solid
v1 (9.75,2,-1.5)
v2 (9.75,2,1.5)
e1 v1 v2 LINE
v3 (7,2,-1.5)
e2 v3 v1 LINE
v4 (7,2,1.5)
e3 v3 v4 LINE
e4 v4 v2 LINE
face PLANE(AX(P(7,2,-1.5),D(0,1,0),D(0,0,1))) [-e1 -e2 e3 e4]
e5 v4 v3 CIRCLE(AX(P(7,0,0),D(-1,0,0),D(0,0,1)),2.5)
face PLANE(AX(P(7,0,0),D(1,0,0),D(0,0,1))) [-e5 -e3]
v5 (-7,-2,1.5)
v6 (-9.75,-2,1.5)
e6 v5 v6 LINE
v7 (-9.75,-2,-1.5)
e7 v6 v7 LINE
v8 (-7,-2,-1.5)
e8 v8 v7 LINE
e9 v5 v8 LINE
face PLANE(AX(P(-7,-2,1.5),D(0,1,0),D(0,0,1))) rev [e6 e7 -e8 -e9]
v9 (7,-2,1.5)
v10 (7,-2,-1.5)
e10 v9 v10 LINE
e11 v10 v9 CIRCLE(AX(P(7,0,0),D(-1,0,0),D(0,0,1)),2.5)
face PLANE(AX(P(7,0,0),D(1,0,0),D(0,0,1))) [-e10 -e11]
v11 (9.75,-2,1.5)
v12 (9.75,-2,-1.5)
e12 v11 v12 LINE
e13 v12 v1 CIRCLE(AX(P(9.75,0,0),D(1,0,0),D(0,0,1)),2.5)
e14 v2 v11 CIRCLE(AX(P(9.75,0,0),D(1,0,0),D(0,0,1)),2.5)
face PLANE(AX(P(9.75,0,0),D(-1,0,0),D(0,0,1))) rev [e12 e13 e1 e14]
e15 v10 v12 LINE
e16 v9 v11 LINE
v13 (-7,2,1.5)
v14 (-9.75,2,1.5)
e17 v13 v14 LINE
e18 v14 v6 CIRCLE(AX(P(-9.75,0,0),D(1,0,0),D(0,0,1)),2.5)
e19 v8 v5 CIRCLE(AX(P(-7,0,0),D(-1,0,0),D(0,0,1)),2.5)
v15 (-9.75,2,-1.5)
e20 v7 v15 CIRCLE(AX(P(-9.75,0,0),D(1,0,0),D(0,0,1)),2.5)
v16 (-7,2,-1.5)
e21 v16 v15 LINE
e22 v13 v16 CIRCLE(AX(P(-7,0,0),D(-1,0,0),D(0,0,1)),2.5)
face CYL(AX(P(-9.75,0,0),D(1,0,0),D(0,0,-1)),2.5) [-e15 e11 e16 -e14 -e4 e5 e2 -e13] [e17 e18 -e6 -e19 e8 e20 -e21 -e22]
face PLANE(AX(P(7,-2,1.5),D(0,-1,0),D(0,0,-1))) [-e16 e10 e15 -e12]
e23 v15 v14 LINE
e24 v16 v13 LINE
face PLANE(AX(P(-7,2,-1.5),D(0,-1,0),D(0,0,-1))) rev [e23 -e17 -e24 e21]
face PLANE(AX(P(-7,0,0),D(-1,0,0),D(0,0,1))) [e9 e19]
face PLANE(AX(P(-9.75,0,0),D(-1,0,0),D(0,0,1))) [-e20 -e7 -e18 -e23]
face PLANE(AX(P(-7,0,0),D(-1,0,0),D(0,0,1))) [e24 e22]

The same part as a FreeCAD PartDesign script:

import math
import FreeCAD as App
import Part
import Sketcher
from FreeCAD import Vector
Q = App.Units.Quantity

doc = App.newDocument("Part")
params = doc.addObject("Spreadsheet::Sheet", "Params")
for row, (alias, value) in enumerate([
    ("sketch1_diameter", "5 mm"),
    ("pad1_length", "19.5 mm"),
    ("sketch2_radius", "2.5 mm"),
    ("sketch2_height", "3 mm"),
    ("pocket1_length", "2.75 mm"),
], start=1):
    params.set(f"A{row}", alias)
    params.set(f"B{row}", "=" + value)
    params.setAlias(f"B{row}", alias)

body = doc.addObject("PartDesign::Body", "Body")

# Sketch on YZ plane
sketch1 = body.newObject("Sketcher::SketchObject", "Sketch")
sketch1.AttachmentSupport = (doc.getObject("YZ_Plane"), [""])
sketch1.MapMode = "FlatFace"
sketch1.addGeometry(Part.Circle(Vector(0, 0, 0), Vector(0, 0, 1), 2.5), False)
sketch1.addConstraint(Sketcher.Constraint("Coincident", 0, 3, -1, 1))
sketch1.addConstraint(Sketcher.Constraint("Diameter", 0, Q("5 mm")))
sketch1.setExpression("Constraints[1]", "Params.sketch1_diameter")
pad1 = body.newObject("PartDesign::Pad", "Pad")
pad1.Profile = sketch1
pad1.setExpression("Length", "Params.pad1_length")
pad1.Midplane = True

# Sketch on YZ plane
sketch2 = body.newObject("Sketcher::SketchObject", "Sketch001")
sketch2.AttachmentSupport = (doc.getObject("YZ_Plane"), [""])
sketch2.MapMode = "FlatFace"
sketch2.AttachmentOffset = App.Placement(Vector(0, 0, -7), App.Rotation())
sketch2.addGeometry(Part.LineSegment(Vector(2, -1.5, 0), Vector(2, 1.5, 0)), False)
sketch2.addGeometry(Part.ArcOfCircle(Part.Circle(Vector(0, 0, 0), Vector(0, 0, 1), 2.5), math.radians(-36.869898), math.radians(36.869898)), False)
sketch2.addGeometry(Part.LineSegment(Vector(-2, 1.5, 0), Vector(-2, -1.5, 0)), False)
sketch2.addGeometry(Part.ArcOfCircle(Part.Circle(Vector(0, 0, 0), Vector(0, 0, 1), 2.5), math.radians(143.130102), math.radians(216.869898)), False)
sketch2.addConstraint(Sketcher.Constraint("Coincident", 0, 1, 1, 1))
sketch2.addConstraint(Sketcher.Constraint("Coincident", 1, 2, 0, 2))
sketch2.addConstraint(Sketcher.Constraint("Coincident", 2, 1, 3, 1))
sketch2.addConstraint(Sketcher.Constraint("Coincident", 3, 2, 2, 2))
sketch2.addConstraint(Sketcher.Constraint("Vertical", 0))
sketch2.addConstraint(Sketcher.Constraint("Vertical", 2))
sketch2.addConstraint(Sketcher.Constraint("Coincident", 1, 3, -1, 1))
sketch2.addConstraint(Sketcher.Constraint("Coincident", 3, 3, -1, 1))
sketch2.addConstraint(Sketcher.Constraint("Equal", 1, 3))
sketch2.addConstraint(Sketcher.Constraint("Horizontal", 1, 2, 2, 1))
sketch2.addConstraint(Sketcher.Constraint("Radius", 1, Q("2.5 mm")))
sketch2.addConstraint(Sketcher.Constraint("DistanceY", 0, 1, 0, 2, Q("3 mm")))
sketch2.setExpression("Constraints[10]", "Params.sketch2_radius")
sketch2.setExpression("Constraints[11]", "Params.sketch2_height")
pocket1 = body.newObject("PartDesign::Pocket", "Pocket")
pocket1.Profile = sketch2
pocket1.setExpression("Length", "Params.pocket1_length")
doc.recompute()

mirrored = body.newObject("PartDesign::Mirrored", "Mirrored")
mirrored.Originals = [pocket1]
mirrored.MirrorPlane = (doc.getObject("YZ_Plane"), [""])
body.Tip = mirrored

doc.recompute()
